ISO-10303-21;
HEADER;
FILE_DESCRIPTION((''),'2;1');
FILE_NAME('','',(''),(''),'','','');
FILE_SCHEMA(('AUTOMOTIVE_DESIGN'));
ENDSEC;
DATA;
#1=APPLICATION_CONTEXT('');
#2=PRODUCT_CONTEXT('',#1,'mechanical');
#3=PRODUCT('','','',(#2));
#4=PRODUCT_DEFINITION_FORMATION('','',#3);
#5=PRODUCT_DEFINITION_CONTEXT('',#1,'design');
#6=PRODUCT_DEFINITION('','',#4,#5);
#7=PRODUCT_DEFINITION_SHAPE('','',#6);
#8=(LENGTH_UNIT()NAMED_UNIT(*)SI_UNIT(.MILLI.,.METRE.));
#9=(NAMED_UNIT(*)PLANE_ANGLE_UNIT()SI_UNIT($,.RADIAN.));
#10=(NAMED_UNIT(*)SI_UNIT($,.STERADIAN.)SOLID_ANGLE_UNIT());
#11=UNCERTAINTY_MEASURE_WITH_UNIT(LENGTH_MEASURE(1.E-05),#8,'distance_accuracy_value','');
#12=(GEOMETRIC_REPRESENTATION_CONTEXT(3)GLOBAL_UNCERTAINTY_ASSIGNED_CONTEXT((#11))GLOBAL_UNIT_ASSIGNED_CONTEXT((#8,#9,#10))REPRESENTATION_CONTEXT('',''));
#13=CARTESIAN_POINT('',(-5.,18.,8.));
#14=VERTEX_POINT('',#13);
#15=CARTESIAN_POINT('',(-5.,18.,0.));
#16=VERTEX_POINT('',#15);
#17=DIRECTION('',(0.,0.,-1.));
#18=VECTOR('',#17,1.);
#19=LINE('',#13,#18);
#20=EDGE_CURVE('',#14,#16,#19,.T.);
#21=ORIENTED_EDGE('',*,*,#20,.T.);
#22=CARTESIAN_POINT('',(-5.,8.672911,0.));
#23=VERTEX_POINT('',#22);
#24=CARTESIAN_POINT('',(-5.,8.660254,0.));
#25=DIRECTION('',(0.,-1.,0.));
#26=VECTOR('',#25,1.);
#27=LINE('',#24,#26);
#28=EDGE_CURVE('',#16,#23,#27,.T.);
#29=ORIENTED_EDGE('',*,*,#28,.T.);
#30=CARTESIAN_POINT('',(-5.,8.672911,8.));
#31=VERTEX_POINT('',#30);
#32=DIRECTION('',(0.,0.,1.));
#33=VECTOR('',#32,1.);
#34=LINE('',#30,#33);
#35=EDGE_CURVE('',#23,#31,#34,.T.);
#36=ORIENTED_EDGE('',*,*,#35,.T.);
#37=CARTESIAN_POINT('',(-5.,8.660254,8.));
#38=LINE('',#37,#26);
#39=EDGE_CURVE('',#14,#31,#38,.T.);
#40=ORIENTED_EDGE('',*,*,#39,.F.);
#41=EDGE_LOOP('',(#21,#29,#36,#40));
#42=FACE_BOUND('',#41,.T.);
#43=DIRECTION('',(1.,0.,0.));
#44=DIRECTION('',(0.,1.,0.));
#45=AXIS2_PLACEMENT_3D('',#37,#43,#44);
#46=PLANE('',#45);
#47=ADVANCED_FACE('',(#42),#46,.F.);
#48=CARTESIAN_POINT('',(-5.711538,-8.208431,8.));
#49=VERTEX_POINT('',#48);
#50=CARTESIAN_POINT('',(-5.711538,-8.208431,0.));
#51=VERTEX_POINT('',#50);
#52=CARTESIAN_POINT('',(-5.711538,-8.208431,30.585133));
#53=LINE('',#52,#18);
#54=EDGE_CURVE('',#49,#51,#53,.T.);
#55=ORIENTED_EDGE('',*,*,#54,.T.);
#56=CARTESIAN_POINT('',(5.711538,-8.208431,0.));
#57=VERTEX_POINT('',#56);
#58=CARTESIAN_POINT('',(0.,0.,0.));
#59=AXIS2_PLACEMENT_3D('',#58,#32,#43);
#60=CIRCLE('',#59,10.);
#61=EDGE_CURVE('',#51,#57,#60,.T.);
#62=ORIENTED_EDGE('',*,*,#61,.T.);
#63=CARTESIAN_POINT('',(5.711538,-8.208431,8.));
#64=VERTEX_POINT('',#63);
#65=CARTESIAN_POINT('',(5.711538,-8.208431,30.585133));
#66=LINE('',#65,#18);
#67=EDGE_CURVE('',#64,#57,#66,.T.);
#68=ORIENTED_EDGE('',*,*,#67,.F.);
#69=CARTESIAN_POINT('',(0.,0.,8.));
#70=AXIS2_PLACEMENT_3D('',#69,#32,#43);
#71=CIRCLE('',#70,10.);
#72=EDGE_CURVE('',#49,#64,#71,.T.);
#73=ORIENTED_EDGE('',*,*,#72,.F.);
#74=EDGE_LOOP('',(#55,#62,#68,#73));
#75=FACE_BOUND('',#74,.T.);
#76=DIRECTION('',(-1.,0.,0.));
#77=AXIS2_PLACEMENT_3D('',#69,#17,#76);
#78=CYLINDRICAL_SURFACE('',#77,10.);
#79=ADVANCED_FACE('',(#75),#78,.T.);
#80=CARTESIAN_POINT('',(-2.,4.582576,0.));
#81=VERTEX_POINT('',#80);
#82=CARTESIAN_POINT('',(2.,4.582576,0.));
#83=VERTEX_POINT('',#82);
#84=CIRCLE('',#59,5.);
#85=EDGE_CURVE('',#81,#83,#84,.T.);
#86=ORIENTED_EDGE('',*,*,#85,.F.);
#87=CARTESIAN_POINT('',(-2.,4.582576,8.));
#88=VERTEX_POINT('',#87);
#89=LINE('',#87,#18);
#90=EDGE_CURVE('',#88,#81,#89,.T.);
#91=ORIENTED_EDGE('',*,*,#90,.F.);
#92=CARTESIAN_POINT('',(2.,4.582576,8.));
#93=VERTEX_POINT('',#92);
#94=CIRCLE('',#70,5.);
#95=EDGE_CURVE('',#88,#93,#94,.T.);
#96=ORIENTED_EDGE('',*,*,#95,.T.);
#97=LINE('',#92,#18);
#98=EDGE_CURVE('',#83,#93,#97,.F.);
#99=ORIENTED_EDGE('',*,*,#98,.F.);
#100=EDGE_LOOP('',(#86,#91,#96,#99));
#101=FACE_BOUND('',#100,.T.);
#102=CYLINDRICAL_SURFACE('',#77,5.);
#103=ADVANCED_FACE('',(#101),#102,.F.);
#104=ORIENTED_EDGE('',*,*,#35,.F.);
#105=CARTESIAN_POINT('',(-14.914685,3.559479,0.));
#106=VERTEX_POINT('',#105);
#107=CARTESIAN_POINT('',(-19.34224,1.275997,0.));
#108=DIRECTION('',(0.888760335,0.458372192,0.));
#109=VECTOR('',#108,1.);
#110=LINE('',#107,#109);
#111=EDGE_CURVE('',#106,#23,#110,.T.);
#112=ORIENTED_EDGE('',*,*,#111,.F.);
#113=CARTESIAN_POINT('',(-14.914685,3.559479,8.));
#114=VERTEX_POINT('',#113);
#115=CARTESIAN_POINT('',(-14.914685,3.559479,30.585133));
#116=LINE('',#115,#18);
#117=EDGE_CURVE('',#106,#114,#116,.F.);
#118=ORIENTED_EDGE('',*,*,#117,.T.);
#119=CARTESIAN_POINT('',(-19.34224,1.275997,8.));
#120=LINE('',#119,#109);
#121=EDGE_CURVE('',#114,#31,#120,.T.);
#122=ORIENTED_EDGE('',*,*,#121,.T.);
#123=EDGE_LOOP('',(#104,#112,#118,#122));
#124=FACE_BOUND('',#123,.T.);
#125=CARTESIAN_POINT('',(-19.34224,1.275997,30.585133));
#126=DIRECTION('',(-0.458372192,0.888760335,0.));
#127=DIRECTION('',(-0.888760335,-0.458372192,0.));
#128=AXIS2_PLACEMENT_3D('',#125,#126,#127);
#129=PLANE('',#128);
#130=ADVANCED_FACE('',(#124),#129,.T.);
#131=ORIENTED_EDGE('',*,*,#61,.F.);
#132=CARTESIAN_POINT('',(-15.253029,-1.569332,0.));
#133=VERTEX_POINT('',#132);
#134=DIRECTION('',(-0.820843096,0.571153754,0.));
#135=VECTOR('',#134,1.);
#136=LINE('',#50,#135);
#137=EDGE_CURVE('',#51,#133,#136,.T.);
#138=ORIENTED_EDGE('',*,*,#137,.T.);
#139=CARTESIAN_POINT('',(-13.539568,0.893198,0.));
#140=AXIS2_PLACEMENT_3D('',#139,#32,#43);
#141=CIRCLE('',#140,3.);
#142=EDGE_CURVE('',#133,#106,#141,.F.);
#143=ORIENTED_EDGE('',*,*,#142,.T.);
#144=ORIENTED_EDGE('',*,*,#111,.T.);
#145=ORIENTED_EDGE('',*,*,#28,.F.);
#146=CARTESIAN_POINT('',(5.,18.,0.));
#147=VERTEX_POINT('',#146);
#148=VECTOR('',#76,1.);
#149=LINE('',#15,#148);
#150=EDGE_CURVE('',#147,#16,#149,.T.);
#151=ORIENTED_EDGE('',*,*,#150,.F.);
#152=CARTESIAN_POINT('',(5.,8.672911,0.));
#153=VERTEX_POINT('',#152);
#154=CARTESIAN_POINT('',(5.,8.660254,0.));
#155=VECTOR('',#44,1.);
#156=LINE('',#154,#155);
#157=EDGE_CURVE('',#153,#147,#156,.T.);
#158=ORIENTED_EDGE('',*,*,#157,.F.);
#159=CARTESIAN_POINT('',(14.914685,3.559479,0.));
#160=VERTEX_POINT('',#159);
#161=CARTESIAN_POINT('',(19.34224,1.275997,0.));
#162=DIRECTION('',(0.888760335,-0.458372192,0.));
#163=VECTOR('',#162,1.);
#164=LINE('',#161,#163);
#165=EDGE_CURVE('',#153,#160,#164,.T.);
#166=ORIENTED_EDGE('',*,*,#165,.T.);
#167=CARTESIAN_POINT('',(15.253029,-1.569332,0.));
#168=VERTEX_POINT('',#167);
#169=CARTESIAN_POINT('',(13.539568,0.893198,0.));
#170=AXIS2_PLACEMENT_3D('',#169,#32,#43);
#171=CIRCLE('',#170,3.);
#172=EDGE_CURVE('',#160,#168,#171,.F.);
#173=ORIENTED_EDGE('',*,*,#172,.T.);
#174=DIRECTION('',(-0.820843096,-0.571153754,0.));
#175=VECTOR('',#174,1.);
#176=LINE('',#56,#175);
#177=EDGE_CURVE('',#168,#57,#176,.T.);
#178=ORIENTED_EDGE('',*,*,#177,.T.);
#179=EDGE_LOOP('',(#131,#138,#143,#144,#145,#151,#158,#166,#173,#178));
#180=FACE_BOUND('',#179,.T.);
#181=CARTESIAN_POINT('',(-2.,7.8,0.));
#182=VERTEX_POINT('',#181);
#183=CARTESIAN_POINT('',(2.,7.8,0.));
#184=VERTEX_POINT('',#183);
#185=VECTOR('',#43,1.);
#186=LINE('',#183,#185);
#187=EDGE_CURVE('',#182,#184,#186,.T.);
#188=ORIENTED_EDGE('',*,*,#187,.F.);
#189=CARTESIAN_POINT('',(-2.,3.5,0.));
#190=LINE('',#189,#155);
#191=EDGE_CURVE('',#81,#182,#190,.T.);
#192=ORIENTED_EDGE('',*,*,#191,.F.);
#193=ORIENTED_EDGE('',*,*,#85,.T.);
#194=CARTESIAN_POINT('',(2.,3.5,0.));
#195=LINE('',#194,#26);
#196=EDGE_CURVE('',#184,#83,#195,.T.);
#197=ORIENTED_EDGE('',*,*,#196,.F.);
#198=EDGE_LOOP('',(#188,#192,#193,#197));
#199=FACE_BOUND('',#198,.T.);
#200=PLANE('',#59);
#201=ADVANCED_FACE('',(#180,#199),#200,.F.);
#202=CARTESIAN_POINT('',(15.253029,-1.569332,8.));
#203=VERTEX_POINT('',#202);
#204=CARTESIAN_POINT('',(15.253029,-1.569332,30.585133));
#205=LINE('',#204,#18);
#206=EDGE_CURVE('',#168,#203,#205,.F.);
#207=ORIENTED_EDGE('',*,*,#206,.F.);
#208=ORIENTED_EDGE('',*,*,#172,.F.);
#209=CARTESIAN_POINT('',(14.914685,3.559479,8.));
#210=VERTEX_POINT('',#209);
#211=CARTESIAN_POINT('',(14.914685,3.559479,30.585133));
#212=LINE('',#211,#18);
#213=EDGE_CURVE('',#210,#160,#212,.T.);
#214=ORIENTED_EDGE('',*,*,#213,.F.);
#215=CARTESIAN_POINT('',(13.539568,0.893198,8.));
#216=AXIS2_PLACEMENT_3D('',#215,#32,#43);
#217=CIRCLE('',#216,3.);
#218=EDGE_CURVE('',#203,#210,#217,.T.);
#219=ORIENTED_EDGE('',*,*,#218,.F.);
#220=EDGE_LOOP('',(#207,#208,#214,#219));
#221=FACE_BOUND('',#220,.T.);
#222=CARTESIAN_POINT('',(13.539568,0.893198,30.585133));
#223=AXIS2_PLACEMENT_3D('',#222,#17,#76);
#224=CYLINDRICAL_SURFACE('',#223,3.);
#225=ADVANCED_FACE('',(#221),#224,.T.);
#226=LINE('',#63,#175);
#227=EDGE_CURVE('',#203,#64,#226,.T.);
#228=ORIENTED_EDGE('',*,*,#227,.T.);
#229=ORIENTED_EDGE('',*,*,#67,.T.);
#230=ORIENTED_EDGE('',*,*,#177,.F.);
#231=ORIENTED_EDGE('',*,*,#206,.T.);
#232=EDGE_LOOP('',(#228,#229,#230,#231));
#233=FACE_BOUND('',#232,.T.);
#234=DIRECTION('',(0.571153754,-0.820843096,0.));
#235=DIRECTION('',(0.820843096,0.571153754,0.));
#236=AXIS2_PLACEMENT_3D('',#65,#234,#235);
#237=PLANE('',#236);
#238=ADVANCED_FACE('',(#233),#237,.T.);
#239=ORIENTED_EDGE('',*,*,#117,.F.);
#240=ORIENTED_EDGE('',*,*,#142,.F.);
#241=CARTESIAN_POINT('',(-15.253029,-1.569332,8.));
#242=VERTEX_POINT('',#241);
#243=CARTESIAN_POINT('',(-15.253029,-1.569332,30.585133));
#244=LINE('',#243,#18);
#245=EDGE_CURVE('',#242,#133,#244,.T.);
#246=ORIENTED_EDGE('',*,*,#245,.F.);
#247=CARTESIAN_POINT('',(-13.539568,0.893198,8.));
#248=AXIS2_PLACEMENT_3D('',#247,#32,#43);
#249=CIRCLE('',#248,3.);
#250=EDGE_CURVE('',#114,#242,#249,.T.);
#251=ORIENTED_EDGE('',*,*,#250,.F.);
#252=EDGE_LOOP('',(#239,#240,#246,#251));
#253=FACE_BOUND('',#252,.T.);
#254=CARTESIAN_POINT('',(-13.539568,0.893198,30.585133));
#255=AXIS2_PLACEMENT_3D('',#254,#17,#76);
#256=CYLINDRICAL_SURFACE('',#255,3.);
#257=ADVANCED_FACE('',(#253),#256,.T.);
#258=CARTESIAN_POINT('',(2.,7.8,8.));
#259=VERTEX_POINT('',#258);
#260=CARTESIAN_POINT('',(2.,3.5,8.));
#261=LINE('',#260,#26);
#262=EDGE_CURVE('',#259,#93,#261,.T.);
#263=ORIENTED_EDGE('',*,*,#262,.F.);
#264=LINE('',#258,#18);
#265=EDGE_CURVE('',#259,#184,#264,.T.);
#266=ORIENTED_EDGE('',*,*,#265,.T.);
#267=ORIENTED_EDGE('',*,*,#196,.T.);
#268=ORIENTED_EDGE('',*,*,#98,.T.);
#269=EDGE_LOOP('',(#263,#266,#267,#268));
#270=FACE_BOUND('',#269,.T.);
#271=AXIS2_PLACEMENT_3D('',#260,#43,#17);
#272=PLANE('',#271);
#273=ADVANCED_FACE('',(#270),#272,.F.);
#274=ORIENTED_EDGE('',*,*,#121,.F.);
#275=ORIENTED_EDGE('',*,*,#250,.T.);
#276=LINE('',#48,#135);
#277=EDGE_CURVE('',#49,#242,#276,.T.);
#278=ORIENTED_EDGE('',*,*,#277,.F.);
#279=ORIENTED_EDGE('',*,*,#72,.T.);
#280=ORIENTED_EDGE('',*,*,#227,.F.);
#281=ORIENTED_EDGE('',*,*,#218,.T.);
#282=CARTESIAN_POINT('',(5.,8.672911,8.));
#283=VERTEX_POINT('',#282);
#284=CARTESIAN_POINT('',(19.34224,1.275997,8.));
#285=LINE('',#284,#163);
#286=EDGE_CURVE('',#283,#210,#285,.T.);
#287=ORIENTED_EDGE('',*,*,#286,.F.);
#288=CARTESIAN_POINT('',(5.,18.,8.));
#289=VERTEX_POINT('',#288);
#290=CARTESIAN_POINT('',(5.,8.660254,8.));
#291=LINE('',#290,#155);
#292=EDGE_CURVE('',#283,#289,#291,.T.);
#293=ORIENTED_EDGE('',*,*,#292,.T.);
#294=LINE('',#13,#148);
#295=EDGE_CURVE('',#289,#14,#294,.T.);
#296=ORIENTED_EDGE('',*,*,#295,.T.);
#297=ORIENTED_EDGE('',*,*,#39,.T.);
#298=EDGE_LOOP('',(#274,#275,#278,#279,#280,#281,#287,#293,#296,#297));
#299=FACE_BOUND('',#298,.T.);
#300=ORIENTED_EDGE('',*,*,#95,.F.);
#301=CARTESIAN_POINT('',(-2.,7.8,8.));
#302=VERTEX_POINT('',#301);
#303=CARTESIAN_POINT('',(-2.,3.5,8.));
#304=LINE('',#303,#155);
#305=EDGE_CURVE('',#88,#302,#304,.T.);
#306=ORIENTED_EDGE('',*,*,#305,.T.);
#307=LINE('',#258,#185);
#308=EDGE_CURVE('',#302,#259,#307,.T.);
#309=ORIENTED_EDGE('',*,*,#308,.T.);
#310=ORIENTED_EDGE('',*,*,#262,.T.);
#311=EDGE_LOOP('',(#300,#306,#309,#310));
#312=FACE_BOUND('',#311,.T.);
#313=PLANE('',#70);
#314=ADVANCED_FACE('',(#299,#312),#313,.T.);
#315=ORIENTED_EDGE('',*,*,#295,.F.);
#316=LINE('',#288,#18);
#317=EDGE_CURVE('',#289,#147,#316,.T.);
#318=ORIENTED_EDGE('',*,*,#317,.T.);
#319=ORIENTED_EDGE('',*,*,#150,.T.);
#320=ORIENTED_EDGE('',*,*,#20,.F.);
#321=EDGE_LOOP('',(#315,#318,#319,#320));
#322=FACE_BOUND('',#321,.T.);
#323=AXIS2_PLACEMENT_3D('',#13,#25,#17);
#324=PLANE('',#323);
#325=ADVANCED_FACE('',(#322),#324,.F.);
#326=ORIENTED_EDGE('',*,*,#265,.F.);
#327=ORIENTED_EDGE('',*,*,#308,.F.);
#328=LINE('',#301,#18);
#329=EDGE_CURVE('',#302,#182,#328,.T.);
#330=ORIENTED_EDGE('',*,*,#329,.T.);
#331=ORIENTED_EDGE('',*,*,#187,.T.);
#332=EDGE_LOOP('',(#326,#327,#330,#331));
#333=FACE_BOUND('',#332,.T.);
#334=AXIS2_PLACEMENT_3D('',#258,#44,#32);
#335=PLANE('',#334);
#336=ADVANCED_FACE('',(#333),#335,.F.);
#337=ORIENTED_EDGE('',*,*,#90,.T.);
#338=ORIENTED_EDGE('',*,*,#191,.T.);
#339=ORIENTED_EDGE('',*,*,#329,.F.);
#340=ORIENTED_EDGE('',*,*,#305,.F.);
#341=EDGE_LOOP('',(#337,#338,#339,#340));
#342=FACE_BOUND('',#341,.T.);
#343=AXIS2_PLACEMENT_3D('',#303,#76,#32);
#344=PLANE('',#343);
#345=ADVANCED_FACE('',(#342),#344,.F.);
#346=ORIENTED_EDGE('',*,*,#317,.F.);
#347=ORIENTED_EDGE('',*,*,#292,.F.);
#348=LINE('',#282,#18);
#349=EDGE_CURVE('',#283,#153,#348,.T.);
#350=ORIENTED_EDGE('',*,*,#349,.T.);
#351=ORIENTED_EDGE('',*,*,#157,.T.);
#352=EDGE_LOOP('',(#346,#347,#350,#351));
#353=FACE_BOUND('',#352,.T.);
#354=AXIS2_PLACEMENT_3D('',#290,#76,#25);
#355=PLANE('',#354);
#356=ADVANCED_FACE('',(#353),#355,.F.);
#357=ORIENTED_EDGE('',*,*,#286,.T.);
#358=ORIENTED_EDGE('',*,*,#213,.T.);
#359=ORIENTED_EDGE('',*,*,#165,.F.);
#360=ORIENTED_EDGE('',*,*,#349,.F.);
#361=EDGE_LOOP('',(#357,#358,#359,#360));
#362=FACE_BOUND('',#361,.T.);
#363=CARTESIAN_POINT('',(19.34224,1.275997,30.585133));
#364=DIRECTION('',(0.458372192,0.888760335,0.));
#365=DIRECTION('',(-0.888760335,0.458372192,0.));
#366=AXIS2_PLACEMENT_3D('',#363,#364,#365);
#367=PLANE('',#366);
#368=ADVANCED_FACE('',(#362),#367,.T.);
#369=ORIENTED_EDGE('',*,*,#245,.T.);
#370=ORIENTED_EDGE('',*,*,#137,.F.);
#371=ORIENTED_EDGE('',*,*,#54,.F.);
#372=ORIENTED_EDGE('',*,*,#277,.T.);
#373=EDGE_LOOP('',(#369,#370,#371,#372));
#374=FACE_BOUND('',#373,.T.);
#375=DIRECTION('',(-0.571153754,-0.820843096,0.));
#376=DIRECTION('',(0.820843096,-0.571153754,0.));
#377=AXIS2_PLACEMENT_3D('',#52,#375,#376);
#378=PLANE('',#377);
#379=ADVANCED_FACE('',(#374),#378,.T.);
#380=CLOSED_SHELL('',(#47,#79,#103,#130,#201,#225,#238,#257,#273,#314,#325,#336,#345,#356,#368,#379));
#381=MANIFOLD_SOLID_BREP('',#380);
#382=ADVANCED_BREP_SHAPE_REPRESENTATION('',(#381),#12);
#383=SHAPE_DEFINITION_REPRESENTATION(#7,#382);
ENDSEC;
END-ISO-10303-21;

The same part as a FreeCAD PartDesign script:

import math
import FreeCAD as App
import Part
import Sketcher
Q = App.Units.Quantity


def edges_at(feature, points):
    """Names of the edges that pass closest to the given points."""
    edges = feature.Shape.Edges
    near = lambda p: min(range(len(edges)), key=lambda i: edges[i].distToShape(Part.Vertex(*p))[0])
    return sorted({f"Edge{near(p) + 1}" for p in points})


def add_polygon(sketch, points):
    """Adds a closed chain of lines whose ends are joined by coincident constraints."""
    first, n = sketch.GeometryCount, len(points)
    for a, b in zip(points, points[1:] + points[:1]):
        sketch.addGeometry(Part.LineSegment(App.Vector(*a, 0), App.Vector(*b, 0)), False)
    for i in range(n):
        sketch.addConstraint(Sketcher.Constraint("Coincident", first + i, 2, first + (i + 1) % n, 1))

doc = App.newDocument("Part")
body = doc.addObject("PartDesign::Body", "Body")

# Sketch on XY plane
sketch1 = body.newObject("Sketcher::SketchObject", "Sketch")
sketch1.AttachmentSupport = (doc.getObject("XY_Plane"), [""])
sketch1.MapMode = "FlatFace"
sketch1.addGeometry([
    Part.LineSegment(App.Vector(-5, 18, 0), App.Vector(-5, 9, 0)),  # 0
    Part.ArcOfCircle(Part.Circle(App.Vector(0, 0, 0), App.Vector(0, 0, 1), 10), math.radians(120), math.radians(420)),  # 1
    Part.LineSegment(App.Vector(5, 9, 0), App.Vector(5, 18, 0)),  # 2
    Part.LineSegment(App.Vector(5, 18, 0), App.Vector(-5, 18, 0)),  # 3
    Part.Circle(App.Vector(0, 0, 0), App.Vector(0, 0, 1), 5),  # 4
], False)
sketch1.addConstraint([
    Sketcher.Constraint("Coincident", 0, 2, 1, 1),
    Sketcher.Constraint("Coincident", 1, 2, 2, 1),
    Sketcher.Constraint("Coincident", 2, 2, 3, 1),
    Sketcher.Constraint("Coincident", 3, 2, 0, 1),
    Sketcher.Constraint("Vertical", 0),
    Sketcher.Constraint("Vertical", 2),
    Sketcher.Constraint("Horizontal", 3),
    Sketcher.Constraint("Coincident", 1, 3, -1, 1),
    Sketcher.Constraint("Coincident", 4, 3, -1, 1),
    Sketcher.Constraint("Horizontal", 0, 2, 1, 2),
    Sketcher.Constraint("Diameter", 4, Q("10 mm")),
    Sketcher.Constraint("Radius", 1, Q("10 mm")),
    Sketcher.Constraint("DistanceX", 3, 2, 3, 1, Q("10 mm")),
    Sketcher.Constraint("DistanceY", -1, 1, 2, 2, Q("18 mm")),
])
pad1 = body.newObject("PartDesign::Pad", "Pad")
pad1.Profile = sketch1
pad1.Length = 8

# Sketch on XY plane
sketch2 = body.newObject("Sketcher::SketchObject", "Sketch001")
sketch2.AttachmentSupport = (doc.getObject("XY_Plane"), [""])
sketch2.MapMode = "FlatFace"
sketch2.addGeometry([
    Part.LineSegment(App.Vector(19, 1, 0), App.Vector(6, -8, 0)),  # 0
    Part.ArcOfCircle(Part.Circle(App.Vector(0, 0, 0), App.Vector(0, 0, 1), 10), math.radians(-55), math.radians(63)),  # 1
    Part.LineSegment(App.Vector(5, 9, 0), App.Vector(19, 1, 0)),  # 2
    Part.LineSegment(App.Vector(-6, -8, 0), App.Vector(-19, 1, 0)),  # 3
    Part.LineSegment(App.Vector(-19, 1, 0), App.Vector(-5, 9, 0)),  # 4
    Part.ArcOfCircle(Part.Circle(App.Vector(0, 0, 0), App.Vector(0, 0, 1), 10), math.radians(117), math.radians(235)),  # 5
], False)
sketch2.addConstraint([
    Sketcher.Constraint("Tangent", 0, 2, 1, 1),
    Sketcher.Constraint("Tangent", 1, 2, 2, 1),
    Sketcher.Constraint("Coincident", 2, 2, 0, 1),
    Sketcher.Constraint("Coincident", 3, 2, 4, 1),
    Sketcher.Constraint("Tangent", 4, 2, 5, 1),
    Sketcher.Constraint("Tangent", 5, 2, 3, 1),
    Sketcher.Constraint("Coincident", 1, 3, -1, 1),
    Sketcher.Constraint("Coincident", 5, 3, -1, 1),
    Sketcher.Constraint("Equal", 1, 5),
    Sketcher.Constraint("Symmetric", 2, 2, 3, 2, -2),
    Sketcher.Constraint("Radius", 1, Q("10 mm")),
    Sketcher.Constraint("DistanceY", 0, 2, -1, 1, Q("8.208431 mm")),
    Sketcher.Constraint("DistanceX", -1, 1, 1, 2, Q("4.583722 mm")),
])
pad2 = body.newObject("PartDesign::Pad", "Pad001")
pad2.Profile = sketch2
pad2.Length = 8
doc.recompute()

fillet = body.newObject("PartDesign::Fillet", "Fillet")
fillet.Base = (pad2, edges_at(pad2, [(19.342, 1.276, 4), (-19.342, 1.276, 4)]))
fillet.Radius = 3

# Sketch on XY plane
sketch3 = body.newObject("Sketcher::SketchObject", "Sketch002")
sketch3.AttachmentSupport = (doc.getObject("XY_Plane"), [""])
sketch3.MapMode = "FlatFace"
add_polygon(sketch3, [(2, 7.8), (2, 3.5), (-2, 3.5), (-2, 7.8)])  # lines 0-3
sketch3.addConstraint([
    Sketcher.Constraint("Vertical", 0),
    Sketcher.Constraint("Horizontal", 1),
    Sketcher.Constraint("Vertical", 2),
    Sketcher.Constraint("Horizontal", 3),
    Sketcher.Constraint("DistanceX", 1, 2, 1, 1, Q("4 mm")),
    Sketcher.Constraint("DistanceY", 0, 2, 0, 1, Q("4.3 mm")),
    Sketcher.Constraint("DistanceX", -1, 1, 0, 2, Q("2 mm")),
    Sketcher.Constraint("DistanceY", -1, 1, 0, 2, Q("3.5 mm")),
])
pocket1 = body.newObject("PartDesign::Pocket", "Pocket")
pocket1.Profile = sketch3
pocket1.Type = "ThroughAll"
pocket1.Reversed = True

doc.recompute()
